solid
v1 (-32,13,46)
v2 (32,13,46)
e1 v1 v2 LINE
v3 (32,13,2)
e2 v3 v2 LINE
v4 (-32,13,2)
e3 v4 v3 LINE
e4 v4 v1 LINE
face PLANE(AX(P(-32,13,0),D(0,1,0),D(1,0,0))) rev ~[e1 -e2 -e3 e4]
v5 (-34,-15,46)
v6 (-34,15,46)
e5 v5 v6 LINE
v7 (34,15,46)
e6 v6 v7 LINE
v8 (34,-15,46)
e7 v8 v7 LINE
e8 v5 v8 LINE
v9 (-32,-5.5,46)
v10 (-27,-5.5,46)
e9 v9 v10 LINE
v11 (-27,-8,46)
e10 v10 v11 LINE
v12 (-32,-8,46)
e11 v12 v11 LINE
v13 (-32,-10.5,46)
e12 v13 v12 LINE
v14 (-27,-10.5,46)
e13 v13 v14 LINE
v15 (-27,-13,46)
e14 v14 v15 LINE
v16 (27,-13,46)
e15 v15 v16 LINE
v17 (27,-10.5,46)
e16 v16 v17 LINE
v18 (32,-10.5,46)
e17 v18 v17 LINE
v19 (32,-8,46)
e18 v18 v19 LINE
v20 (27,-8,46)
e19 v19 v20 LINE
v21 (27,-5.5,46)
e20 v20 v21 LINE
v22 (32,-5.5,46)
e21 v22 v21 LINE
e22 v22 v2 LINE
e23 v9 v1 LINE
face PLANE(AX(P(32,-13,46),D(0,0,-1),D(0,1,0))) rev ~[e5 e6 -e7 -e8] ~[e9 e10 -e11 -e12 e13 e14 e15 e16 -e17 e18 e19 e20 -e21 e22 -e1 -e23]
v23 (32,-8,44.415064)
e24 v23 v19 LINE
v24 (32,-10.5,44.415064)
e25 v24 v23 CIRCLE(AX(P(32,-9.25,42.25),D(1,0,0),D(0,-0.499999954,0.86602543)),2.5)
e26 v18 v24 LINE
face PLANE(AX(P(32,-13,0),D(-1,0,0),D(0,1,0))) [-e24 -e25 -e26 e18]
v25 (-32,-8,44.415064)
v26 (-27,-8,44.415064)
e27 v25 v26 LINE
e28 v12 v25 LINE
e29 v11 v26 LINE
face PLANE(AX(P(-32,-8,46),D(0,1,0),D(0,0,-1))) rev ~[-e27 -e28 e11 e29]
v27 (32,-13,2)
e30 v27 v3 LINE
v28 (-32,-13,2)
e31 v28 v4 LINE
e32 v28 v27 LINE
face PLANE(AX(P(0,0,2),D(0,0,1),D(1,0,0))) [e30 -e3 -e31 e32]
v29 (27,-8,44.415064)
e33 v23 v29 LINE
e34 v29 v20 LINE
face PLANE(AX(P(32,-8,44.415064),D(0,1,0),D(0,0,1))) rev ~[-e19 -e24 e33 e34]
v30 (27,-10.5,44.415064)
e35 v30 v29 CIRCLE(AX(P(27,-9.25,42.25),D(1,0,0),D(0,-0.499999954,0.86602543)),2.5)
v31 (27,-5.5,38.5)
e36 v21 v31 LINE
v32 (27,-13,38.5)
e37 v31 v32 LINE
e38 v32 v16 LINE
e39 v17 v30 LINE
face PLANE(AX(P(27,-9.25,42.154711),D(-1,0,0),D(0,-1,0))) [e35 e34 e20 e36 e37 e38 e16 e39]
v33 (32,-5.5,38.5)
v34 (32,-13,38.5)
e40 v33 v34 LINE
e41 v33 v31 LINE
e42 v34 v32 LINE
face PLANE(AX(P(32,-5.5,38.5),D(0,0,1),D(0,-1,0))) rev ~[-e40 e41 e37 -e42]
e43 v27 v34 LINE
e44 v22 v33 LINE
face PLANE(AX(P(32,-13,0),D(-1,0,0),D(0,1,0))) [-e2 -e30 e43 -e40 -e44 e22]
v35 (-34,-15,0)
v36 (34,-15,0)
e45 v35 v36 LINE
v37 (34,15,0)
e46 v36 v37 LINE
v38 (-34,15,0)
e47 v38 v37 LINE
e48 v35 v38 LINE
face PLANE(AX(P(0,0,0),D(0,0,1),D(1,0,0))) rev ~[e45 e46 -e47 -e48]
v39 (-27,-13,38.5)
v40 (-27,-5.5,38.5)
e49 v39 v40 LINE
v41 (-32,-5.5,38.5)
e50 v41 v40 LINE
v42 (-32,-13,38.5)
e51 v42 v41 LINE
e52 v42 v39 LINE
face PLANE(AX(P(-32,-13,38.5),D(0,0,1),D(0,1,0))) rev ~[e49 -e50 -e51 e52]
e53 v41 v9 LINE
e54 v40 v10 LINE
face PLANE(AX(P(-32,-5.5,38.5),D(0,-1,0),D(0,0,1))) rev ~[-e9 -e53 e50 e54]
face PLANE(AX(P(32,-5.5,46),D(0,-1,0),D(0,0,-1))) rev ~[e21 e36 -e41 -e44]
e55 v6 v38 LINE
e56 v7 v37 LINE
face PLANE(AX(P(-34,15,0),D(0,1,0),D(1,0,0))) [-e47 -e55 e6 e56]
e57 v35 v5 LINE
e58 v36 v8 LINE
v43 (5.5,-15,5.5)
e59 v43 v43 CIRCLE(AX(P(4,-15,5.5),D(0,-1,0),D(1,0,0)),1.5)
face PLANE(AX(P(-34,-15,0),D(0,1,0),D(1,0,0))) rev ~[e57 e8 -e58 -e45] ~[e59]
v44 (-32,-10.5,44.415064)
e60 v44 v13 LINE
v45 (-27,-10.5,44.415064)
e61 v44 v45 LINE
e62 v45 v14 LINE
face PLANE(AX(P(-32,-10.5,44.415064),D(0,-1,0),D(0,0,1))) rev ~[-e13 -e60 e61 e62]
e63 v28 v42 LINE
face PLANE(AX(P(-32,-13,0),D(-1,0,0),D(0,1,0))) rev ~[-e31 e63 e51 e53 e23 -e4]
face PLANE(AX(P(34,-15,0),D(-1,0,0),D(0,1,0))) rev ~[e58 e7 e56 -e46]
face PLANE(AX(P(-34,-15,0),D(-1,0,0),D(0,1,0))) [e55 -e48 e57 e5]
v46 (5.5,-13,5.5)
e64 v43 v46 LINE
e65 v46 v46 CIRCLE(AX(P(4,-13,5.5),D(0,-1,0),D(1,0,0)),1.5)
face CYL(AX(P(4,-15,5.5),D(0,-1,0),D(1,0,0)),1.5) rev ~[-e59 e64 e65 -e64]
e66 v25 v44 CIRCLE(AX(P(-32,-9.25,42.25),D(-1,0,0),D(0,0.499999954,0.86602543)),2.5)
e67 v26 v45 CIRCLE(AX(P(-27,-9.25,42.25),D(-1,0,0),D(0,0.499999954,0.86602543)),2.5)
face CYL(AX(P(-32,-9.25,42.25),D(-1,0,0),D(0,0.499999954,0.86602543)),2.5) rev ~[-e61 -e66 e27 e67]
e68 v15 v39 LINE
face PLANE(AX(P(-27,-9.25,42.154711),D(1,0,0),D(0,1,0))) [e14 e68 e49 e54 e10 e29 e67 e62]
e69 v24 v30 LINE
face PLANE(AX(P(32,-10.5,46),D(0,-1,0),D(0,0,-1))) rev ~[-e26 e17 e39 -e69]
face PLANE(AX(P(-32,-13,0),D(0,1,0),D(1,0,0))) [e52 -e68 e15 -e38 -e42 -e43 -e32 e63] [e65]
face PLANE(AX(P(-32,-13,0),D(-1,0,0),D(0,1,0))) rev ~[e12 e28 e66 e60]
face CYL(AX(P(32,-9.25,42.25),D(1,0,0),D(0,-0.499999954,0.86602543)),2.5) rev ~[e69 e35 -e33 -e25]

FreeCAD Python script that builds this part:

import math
import FreeCAD as App
import Part
import Sketcher
from FreeCAD import Vector
Q = App.Units.Quantity

doc = App.newDocument("Part")
body = doc.addObject("PartDesign::Body", "Body")

# Sketch on XY plane
sketch1 = body.newObject("Sketcher::SketchObject", "Sketch")
sketch1.AttachmentSupport = (doc.getObject("XY_Plane"), [""])
sketch1.MapMode = "FlatFace"
sketch1.addGeometry([
    Part.LineSegment(Vector(-34, 15, 0), Vector(-34, -15, 0)),  # 0
    Part.LineSegment(Vector(-34, -15, 0), Vector(34, -15, 0)),  # 1
    Part.LineSegment(Vector(34, -15, 0), Vector(34, 15, 0)),  # 2
    Part.LineSegment(Vector(34, 15, 0), Vector(-34, 15, 0)),  # 3
    Part.LineSegment(Vector(32, -13, 0), Vector(-32, -13, 0)),  # 4
    Part.LineSegment(Vector(-32, -13, 0), Vector(-32, 13, 0)),  # 5
    Part.LineSegment(Vector(-32, 13, 0), Vector(32, 13, 0)),  # 6
    Part.LineSegment(Vector(32, 13, 0), Vector(32, -13, 0)),  # 7
], False)
sketch1.addConstraint([
    Sketcher.Constraint("Coincident", 0, 2, 1, 1),
    Sketcher.Constraint("Coincident", 1, 2, 2, 1),
    Sketcher.Constraint("Coincident", 2, 2, 3, 1),
    Sketcher.Constraint("Coincident", 3, 2, 0, 1),
    Sketcher.Constraint("Coincident", 4, 2, 5, 1),
    Sketcher.Constraint("Coincident", 5, 2, 6, 1),
    Sketcher.Constraint("Coincident", 6, 2, 7, 1),
    Sketcher.Constraint("Coincident", 7, 2, 4, 1),
    Sketcher.Constraint("Vertical", 0),
    Sketcher.Constraint("Horizontal", 1),
    Sketcher.Constraint("Vertical", 2),
    Sketcher.Constraint("Horizontal", 3),
    Sketcher.Constraint("Horizontal", 4),
    Sketcher.Constraint("Vertical", 5),
    Sketcher.Constraint("Horizontal", 6),
    Sketcher.Constraint("Vertical", 7),
    Sketcher.Constraint("Symmetric", 0, 2, 2, 2, -1, 1),
    Sketcher.Constraint("Symmetric", 4, 2, 6, 2, -1, 1),
    Sketcher.Constraint("DistanceX", 1, 1, 1, 2, Q("68 mm")),
    Sketcher.Constraint("DistanceX", 4, 2, 4, 1, Q("64 mm")),
    Sketcher.Constraint("DistanceY", 0, 2, 0, 1, Q("30 mm")),
    Sketcher.Constraint("DistanceY", 5, 1, 5, 2, Q("26 mm")),
])
pad1 = body.newObject("PartDesign::Pad", "Pad")
pad1.Profile = sketch1
pad1.Length = 46

# Sketch on XY plane
sketch2 = body.newObject("Sketcher::SketchObject", "Sketch001")
sketch2.AttachmentSupport = (doc.getObject("XY_Plane"), [""])
sketch2.MapMode = "FlatFace"
sketch2.addGeometry([
    Part.LineSegment(Vector(-34, 15, 0), Vector(-34, -15, 0)),
    Part.LineSegment(Vector(-34, -15, 0), Vector(34, -15, 0)),
    Part.LineSegment(Vector(34, -15, 0), Vector(34, 15, 0)),
    Part.LineSegment(Vector(34, 15, 0), Vector(-34, 15, 0)),
], False)
sketch2.addConstraint([
    Sketcher.Constraint("Coincident", 0, 2, 1, 1),
    Sketcher.Constraint("Coincident", 1, 2, 2, 1),
    Sketcher.Constraint("Coincident", 2, 2, 3, 1),
    Sketcher.Constraint("Coincident", 3, 2, 0, 1),
    Sketcher.Constraint("Vertical", 0),
    Sketcher.Constraint("Horizontal", 1),
    Sketcher.Constraint("Vertical", 2),
    Sketcher.Constraint("Horizontal", 3),
    Sketcher.Constraint("Symmetric", 0, 2, 2, 2, -1, 1),
    Sketcher.Constraint("DistanceX", 1, 1, 1, 2, Q("68 mm")),
    Sketcher.Constraint("DistanceY", 0, 2, 0, 1, Q("30 mm")),
])
pad2 = body.newObject("PartDesign::Pad", "Pad001")
pad2.Profile = sketch2
pad2.Length = 2

# Sketch on XZ plane
sketch3 = body.newObject("Sketcher::SketchObject", "Sketch002")
sketch3.AttachmentSupport = (doc.getObject("XZ_Plane"), [""])
sketch3.MapMode = "FlatFace"
sketch3.AttachmentOffset = App.Placement(Vector(0, 0, 15), App.Rotation())
sketch3.addGeometry(Part.Circle(Vector(4, 5.5, 0), Vector(0, 0, 1), 1.5), False)
sketch3.addConstraint([
    Sketcher.Constraint("Diameter", 0, Q("3 mm")),
    Sketcher.Constraint("DistanceX", -1, 1, 0, 3, Q("4 mm")),
    Sketcher.Constraint("DistanceY", -1, 1, 0, 3, Q("5.5 mm")),
])
pocket1 = body.newObject("PartDesign::Pocket", "Pocket")
pocket1.Profile = sketch3
pocket1.Length = 3

# Sketch on YZ plane
sketch4 = body.newObject("Sketcher::SketchObject", "Sketch003")
sketch4.AttachmentSupport = (doc.getObject("YZ_Plane"), [""])
sketch4.MapMode = "FlatFace"
sketch4.AttachmentOffset = App.Placement(Vector(0, 0, -32), App.Rotation())
sketch4.addGeometry([
    Part.LineSegment(Vector(-10.5, 46, 0), Vector(-13, 46, 0)),  # 0
    Part.LineSegment(Vector(-13, 46, 0), Vector(-13, 38.5, 0)),  # 1
    Part.LineSegment(Vector(-13, 38.5, 0), Vector(-5.5, 38.5, 0)),  # 2
    Part.LineSegment(Vector(-5.5, 38.5, 0), Vector(-5.5, 46, 0)),  # 3
    Part.LineSegment(Vector(-5.5, 46, 0), Vector(-8, 46, 0)),  # 4
    Part.LineSegment(Vector(-8, 46, 0), Vector(-8, 44.4, 0)),  # 5
    Part.ArcOfCircle(Part.Circle(Vector(-9.2, 42.3, 0), Vector(0, 0, 1), 2.5), math.radians(120), math.radians(420)),  # 6
    Part.LineSegment(Vector(-10.5, 44.4, 0), Vector(-10.5, 46, 0)),  # 7
], False)
sketch4.addConstraint([
    Sketcher.Constraint("Coincident", 0, 2, 1, 1),
    Sketcher.Constraint("Coincident", 1, 2, 2, 1),
    Sketcher.Constraint("Coincident", 2, 2, 3, 1),
    Sketcher.Constraint("Coincident", 3, 2, 4, 1),
    Sketcher.Constraint("Coincident", 4, 2, 5, 1),
    Sketcher.Constraint("Coincident", 5, 2, 6, 2),
    Sketcher.Constraint("Coincident", 6, 1, 7, 1),
    Sketcher.Constraint("Coincident", 7, 2, 0, 1),
    Sketcher.Constraint("Horizontal", 0),
    Sketcher.Constraint("Vertical", 1),
    Sketcher.Constraint("Horizontal", 2),
    Sketcher.Constraint("Vertical", 3),
    Sketcher.Constraint("Horizontal", 4),
    Sketcher.Constraint("Vertical", 5),
    Sketcher.Constraint("Vertical", 7),
    Sketcher.Constraint("Horizontal", 0, 2, 3, 2),
    Sketcher.Constraint("Horizontal", 5, 2, 6, 1),
    Sketcher.Constraint("Equal", 0, 4),
    Sketcher.Constraint("Equal", 2, 1),
    Sketcher.Constraint("Radius", 6, Q("2.5 mm")),
    Sketcher.Constraint("DistanceX", 0, 2, 0, 1, Q("2.5 mm")),
    Sketcher.Constraint("DistanceX", 2, 1, 2, 2, Q("7.5 mm")),
    Sketcher.Constraint("DistanceX", 0, 2, -1, 1, Q("13 mm")),
    Sketcher.Constraint("DistanceY", -1, 1, 0, 2, Q("46 mm")),
    Sketcher.Constraint("DistanceY", -1, 1, 6, 3, Q("42.25 mm")),
])
pad3 = body.newObject("PartDesign::Pad", "Pad002")
pad3.Profile = sketch4
pad3.Length = 5

# Sketch on YZ plane
sketch5 = body.newObject("Sketcher::SketchObject", "Sketch004")
sketch5.AttachmentSupport = (doc.getObject("YZ_Plane"), [""])
sketch5.MapMode = "FlatFace"
sketch5.AttachmentOffset = App.Placement(Vector(0, 0, 32), App.Rotation())
sketch5.addGeometry([
    Part.LineSegment(Vector(-13, 38.5, 0), Vector(-13, 46, 0)),  # 0
    Part.LineSegment(Vector(-13, 46, 0), Vector(-10.5, 46, 0)),  # 1
    Part.LineSegment(Vector(-10.5, 46, 0), Vector(-10.5, 44.4, 0)),  # 2
    Part.ArcOfCircle(Part.Circle(Vector(-9.2, 42.3, 0), Vector(0, 0, 1), 2.5), math.radians(120), math.radians(420)),  # 3
    Part.LineSegment(Vector(-8, 44.4, 0), Vector(-8, 46, 0)),  # 4
    Part.LineSegment(Vector(-8, 46, 0), Vector(-5.5, 46, 0)),  # 5
    Part.LineSegment(Vector(-5.5, 46, 0), Vector(-5.5, 38.5, 0)),  # 6
    Part.LineSegment(Vector(-5.5, 38.5, 0), Vector(-13, 38.5, 0)),  # 7
], False)
sketch5.addConstraint([
    Sketcher.Constraint("Coincident", 0, 2, 1, 1),
    Sketcher.Constraint("Coincident", 1, 2, 2, 1),
    Sketcher.Constraint("Coincident", 2, 2, 3, 1),
    Sketcher.Constraint("Coincident", 3, 2, 4, 1),
    Sketcher.Constraint("Coincident", 4, 2, 5, 1),
    Sketcher.Constraint("Coincident", 5, 2, 6, 1),
    Sketcher.Constraint("Coincident", 6, 2, 7, 1),
    Sketcher.Constraint("Coincident", 7, 2, 0, 1),
    Sketcher.Constraint("Vertical", 0),
    Sketcher.Constraint("Horizontal", 1),
    Sketcher.Constraint("Vertical", 2),
    Sketcher.Constraint("Vertical", 4),
    Sketcher.Constraint("Horizontal", 5),
    Sketcher.Constraint("Vertical", 6),
    Sketcher.Constraint("Horizontal", 7),
    Sketcher.Constraint("Horizontal", 2, 2, 3, 2),
    Sketcher.Constraint("Horizontal", 1, 2, 4, 2),
    Sketcher.Constraint("Equal", 1, 5),
    Sketcher.Constraint("Equal", 7, 0),
    Sketcher.Constraint("Radius", 3, Q("2.5 mm")),
    Sketcher.Constraint("DistanceX", 1, 1, 1, 2, Q("2.5 mm")),
    Sketcher.Constraint("DistanceX", 7, 2, 7, 1, Q("7.5 mm")),
    Sketcher.Constraint("DistanceX", 0, 2, -1, 1, Q("13 mm")),
    Sketcher.Constraint("DistanceY", -1, 1, 0, 2, Q("46 mm")),
    Sketcher.Constraint("DistanceY", -1, 1, 3, 3, Q("42.25 mm")),
])
pad4 = body.newObject("PartDesign::Pad", "Pad003")
pad4.Profile = sketch5
pad4.Length = 5
pad4.Reversed = True

doc.recompute()
